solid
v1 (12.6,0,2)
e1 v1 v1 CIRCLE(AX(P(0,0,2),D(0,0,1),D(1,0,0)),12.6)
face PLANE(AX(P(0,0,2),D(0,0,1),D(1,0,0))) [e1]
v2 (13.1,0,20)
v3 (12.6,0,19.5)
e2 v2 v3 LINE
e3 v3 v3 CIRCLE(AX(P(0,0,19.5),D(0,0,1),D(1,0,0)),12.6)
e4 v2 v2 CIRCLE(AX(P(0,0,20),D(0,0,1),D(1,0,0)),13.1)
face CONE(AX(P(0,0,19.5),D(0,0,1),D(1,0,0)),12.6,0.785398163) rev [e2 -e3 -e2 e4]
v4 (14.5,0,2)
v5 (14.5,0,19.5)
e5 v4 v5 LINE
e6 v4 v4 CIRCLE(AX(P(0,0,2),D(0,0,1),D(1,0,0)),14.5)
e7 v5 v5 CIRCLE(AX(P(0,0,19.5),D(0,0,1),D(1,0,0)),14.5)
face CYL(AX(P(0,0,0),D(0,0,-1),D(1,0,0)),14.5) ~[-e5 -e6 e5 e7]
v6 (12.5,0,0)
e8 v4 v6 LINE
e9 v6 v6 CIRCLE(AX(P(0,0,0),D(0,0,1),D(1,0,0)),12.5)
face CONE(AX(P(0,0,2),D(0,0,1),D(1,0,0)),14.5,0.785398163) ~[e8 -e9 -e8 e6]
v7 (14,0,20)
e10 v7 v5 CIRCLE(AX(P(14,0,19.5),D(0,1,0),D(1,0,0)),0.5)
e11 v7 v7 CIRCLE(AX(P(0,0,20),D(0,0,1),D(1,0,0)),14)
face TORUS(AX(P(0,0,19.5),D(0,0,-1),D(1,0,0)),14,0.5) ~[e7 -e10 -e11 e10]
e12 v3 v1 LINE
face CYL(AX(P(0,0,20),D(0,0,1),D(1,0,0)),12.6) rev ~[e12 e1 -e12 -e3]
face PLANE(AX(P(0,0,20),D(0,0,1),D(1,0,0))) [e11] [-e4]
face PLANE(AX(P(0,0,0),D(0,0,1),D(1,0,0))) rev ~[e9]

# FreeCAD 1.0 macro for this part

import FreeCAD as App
import Part
import Sketcher


def edges_at(feature, points):
    """Names of the edges that pass closest to the given points."""
    edges = feature.Shape.Edges
    near = lambda p: min(range(len(edges)), key=lambda i: edges[i].distToShape(Part.Vertex(*p))[0])
    return sorted({f"Edge{near(p) + 1}" for p in points})

doc = App.newDocument("Part")
body = doc.addObject("PartDesign::Body", "Body")

sketch1 = body.newObject("Sketcher::SketchObject", "Sketch")
sketch1.AttachmentSupport = (doc.getObject("XY_Plane"), [""])
sketch1.MapMode = "FlatFace"
sketch1.addGeometry(Part.Circle(App.Vector(0, 0, 0), App.Vector(0, 0, 1), 14), False)
sketch1.addConstraint([
    Sketcher.Constraint("Coincident", 0, 3, -1, 1),
    Sketcher.Constraint("Diameter", 0, 29.0),
])
pad1 = body.newObject("PartDesign::Pad", "Pad")
pad1.Profile = sketch1
pad1.Length = 20

sketch2 = body.newObject("Sketcher::SketchObject", "Sketch001")
sketch2.AttachmentSupport = (doc.getObject("XY_Plane"), [""])
sketch2.MapMode = "FlatFace"
sketch2.AttachmentOffset = App.Placement(App.Vector(0, 0, 20), App.Rotation())
sketch2.addGeometry(Part.Circle(App.Vector(0, 0, 0), App.Vector(0, 0, 1), 13), False)
sketch2.addConstraint([
    Sketcher.Constraint("Coincident", 0, 3, -1, 1),
    Sketcher.Constraint("Diameter", 0, 25.2),
])
pocket1 = body.newObject("PartDesign::Pocket", "Pocket")
pocket1.Profile = sketch2
pocket1.Length = 18
doc.recompute()

chamfer = body.newObject("PartDesign::Chamfer", "Chamfer")
chamfer.Base = (pocket1, edges_at(pocket1, [(-14.5, 0, 0)]))
chamfer.Size = 2
doc.recompute()

chamfer2 = body.newObject("PartDesign::Chamfer", "Chamfer001")
chamfer2.Base = (chamfer, edges_at(chamfer, [(-12.6, 0, 20)]))
chamfer2.Size = 0.5
doc.recompute()

fillet = body.newObject("PartDesign::Fillet", "Fillet")
fillet.Base = (chamfer2, edges_at(chamfer2, [(-14.5, 0, 20)]))
fillet.Radius = 0.5

doc.recompute()
